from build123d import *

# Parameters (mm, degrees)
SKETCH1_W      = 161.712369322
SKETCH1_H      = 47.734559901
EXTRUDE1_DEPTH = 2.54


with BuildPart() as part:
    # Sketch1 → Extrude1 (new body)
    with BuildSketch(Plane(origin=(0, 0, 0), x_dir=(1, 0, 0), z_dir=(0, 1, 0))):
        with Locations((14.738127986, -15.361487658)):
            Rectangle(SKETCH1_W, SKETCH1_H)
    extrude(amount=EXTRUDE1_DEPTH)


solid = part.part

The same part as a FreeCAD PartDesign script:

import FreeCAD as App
import Part
import Sketcher
Q = App.Units.Quantity


def add_polygon(sketch, points):
    """Adds a closed chain of lines whose ends are joined by coincident constraints."""
    first, n = sketch.GeometryCount, len(points)
    for a, b in zip(points, points[1:] + points[:1]):
        sketch.addGeometry(Part.LineSegment(App.Vector(*a, 0), App.Vector(*b, 0)), False)
    for i in range(n):
        sketch.addConstraint(Sketcher.Constraint("Coincident", first + i, 2, first + (i + 1) % n, 1))

doc = App.newDocument("Part")
body = doc.addObject("PartDesign::Body", "Body")

sketch1 = body.newObject("Sketcher::SketchObject", "Sketch")
sketch1.AttachmentSupport = (doc.getObject("XZ_Plane"), [""])
sketch1.MapMode = "FlatFace"
add_polygon(sketch1, [(-66, -9), (-66, 39), (96, 39), (96, -9)])
sketch1.addConstraint(Sketcher.Constraint("Vertical", 0))
sketch1.addConstraint(Sketcher.Constraint("Horizontal", 1))
sketch1.addConstraint(Sketcher.Constraint("Vertical", 2))
sketch1.addConstraint(Sketcher.Constraint("Horizontal", 3))
sketch1.addConstraint(Sketcher.Constraint("DistanceX", 1, 1, 1, 2, 161.712369))
sketch1.addConstraint(Sketcher.Constraint("DistanceY", 0, 1, 0, 2, 47.73456))
sketch1.addConstraint(Sketcher.Constraint("DistanceX", 0, 2, -1, 1, 66.118057))
sketch1.addConstraint(Sketcher.Constraint("DistanceY", -1, 1, 0, 2, 39.228768))
pad1 = body.newObject("PartDesign::Pad", "Pad")
pad1.Profile = sketch1
pad1.Length = Q("0.1 in")
pad1.Reversed = True

doc.recompute()
